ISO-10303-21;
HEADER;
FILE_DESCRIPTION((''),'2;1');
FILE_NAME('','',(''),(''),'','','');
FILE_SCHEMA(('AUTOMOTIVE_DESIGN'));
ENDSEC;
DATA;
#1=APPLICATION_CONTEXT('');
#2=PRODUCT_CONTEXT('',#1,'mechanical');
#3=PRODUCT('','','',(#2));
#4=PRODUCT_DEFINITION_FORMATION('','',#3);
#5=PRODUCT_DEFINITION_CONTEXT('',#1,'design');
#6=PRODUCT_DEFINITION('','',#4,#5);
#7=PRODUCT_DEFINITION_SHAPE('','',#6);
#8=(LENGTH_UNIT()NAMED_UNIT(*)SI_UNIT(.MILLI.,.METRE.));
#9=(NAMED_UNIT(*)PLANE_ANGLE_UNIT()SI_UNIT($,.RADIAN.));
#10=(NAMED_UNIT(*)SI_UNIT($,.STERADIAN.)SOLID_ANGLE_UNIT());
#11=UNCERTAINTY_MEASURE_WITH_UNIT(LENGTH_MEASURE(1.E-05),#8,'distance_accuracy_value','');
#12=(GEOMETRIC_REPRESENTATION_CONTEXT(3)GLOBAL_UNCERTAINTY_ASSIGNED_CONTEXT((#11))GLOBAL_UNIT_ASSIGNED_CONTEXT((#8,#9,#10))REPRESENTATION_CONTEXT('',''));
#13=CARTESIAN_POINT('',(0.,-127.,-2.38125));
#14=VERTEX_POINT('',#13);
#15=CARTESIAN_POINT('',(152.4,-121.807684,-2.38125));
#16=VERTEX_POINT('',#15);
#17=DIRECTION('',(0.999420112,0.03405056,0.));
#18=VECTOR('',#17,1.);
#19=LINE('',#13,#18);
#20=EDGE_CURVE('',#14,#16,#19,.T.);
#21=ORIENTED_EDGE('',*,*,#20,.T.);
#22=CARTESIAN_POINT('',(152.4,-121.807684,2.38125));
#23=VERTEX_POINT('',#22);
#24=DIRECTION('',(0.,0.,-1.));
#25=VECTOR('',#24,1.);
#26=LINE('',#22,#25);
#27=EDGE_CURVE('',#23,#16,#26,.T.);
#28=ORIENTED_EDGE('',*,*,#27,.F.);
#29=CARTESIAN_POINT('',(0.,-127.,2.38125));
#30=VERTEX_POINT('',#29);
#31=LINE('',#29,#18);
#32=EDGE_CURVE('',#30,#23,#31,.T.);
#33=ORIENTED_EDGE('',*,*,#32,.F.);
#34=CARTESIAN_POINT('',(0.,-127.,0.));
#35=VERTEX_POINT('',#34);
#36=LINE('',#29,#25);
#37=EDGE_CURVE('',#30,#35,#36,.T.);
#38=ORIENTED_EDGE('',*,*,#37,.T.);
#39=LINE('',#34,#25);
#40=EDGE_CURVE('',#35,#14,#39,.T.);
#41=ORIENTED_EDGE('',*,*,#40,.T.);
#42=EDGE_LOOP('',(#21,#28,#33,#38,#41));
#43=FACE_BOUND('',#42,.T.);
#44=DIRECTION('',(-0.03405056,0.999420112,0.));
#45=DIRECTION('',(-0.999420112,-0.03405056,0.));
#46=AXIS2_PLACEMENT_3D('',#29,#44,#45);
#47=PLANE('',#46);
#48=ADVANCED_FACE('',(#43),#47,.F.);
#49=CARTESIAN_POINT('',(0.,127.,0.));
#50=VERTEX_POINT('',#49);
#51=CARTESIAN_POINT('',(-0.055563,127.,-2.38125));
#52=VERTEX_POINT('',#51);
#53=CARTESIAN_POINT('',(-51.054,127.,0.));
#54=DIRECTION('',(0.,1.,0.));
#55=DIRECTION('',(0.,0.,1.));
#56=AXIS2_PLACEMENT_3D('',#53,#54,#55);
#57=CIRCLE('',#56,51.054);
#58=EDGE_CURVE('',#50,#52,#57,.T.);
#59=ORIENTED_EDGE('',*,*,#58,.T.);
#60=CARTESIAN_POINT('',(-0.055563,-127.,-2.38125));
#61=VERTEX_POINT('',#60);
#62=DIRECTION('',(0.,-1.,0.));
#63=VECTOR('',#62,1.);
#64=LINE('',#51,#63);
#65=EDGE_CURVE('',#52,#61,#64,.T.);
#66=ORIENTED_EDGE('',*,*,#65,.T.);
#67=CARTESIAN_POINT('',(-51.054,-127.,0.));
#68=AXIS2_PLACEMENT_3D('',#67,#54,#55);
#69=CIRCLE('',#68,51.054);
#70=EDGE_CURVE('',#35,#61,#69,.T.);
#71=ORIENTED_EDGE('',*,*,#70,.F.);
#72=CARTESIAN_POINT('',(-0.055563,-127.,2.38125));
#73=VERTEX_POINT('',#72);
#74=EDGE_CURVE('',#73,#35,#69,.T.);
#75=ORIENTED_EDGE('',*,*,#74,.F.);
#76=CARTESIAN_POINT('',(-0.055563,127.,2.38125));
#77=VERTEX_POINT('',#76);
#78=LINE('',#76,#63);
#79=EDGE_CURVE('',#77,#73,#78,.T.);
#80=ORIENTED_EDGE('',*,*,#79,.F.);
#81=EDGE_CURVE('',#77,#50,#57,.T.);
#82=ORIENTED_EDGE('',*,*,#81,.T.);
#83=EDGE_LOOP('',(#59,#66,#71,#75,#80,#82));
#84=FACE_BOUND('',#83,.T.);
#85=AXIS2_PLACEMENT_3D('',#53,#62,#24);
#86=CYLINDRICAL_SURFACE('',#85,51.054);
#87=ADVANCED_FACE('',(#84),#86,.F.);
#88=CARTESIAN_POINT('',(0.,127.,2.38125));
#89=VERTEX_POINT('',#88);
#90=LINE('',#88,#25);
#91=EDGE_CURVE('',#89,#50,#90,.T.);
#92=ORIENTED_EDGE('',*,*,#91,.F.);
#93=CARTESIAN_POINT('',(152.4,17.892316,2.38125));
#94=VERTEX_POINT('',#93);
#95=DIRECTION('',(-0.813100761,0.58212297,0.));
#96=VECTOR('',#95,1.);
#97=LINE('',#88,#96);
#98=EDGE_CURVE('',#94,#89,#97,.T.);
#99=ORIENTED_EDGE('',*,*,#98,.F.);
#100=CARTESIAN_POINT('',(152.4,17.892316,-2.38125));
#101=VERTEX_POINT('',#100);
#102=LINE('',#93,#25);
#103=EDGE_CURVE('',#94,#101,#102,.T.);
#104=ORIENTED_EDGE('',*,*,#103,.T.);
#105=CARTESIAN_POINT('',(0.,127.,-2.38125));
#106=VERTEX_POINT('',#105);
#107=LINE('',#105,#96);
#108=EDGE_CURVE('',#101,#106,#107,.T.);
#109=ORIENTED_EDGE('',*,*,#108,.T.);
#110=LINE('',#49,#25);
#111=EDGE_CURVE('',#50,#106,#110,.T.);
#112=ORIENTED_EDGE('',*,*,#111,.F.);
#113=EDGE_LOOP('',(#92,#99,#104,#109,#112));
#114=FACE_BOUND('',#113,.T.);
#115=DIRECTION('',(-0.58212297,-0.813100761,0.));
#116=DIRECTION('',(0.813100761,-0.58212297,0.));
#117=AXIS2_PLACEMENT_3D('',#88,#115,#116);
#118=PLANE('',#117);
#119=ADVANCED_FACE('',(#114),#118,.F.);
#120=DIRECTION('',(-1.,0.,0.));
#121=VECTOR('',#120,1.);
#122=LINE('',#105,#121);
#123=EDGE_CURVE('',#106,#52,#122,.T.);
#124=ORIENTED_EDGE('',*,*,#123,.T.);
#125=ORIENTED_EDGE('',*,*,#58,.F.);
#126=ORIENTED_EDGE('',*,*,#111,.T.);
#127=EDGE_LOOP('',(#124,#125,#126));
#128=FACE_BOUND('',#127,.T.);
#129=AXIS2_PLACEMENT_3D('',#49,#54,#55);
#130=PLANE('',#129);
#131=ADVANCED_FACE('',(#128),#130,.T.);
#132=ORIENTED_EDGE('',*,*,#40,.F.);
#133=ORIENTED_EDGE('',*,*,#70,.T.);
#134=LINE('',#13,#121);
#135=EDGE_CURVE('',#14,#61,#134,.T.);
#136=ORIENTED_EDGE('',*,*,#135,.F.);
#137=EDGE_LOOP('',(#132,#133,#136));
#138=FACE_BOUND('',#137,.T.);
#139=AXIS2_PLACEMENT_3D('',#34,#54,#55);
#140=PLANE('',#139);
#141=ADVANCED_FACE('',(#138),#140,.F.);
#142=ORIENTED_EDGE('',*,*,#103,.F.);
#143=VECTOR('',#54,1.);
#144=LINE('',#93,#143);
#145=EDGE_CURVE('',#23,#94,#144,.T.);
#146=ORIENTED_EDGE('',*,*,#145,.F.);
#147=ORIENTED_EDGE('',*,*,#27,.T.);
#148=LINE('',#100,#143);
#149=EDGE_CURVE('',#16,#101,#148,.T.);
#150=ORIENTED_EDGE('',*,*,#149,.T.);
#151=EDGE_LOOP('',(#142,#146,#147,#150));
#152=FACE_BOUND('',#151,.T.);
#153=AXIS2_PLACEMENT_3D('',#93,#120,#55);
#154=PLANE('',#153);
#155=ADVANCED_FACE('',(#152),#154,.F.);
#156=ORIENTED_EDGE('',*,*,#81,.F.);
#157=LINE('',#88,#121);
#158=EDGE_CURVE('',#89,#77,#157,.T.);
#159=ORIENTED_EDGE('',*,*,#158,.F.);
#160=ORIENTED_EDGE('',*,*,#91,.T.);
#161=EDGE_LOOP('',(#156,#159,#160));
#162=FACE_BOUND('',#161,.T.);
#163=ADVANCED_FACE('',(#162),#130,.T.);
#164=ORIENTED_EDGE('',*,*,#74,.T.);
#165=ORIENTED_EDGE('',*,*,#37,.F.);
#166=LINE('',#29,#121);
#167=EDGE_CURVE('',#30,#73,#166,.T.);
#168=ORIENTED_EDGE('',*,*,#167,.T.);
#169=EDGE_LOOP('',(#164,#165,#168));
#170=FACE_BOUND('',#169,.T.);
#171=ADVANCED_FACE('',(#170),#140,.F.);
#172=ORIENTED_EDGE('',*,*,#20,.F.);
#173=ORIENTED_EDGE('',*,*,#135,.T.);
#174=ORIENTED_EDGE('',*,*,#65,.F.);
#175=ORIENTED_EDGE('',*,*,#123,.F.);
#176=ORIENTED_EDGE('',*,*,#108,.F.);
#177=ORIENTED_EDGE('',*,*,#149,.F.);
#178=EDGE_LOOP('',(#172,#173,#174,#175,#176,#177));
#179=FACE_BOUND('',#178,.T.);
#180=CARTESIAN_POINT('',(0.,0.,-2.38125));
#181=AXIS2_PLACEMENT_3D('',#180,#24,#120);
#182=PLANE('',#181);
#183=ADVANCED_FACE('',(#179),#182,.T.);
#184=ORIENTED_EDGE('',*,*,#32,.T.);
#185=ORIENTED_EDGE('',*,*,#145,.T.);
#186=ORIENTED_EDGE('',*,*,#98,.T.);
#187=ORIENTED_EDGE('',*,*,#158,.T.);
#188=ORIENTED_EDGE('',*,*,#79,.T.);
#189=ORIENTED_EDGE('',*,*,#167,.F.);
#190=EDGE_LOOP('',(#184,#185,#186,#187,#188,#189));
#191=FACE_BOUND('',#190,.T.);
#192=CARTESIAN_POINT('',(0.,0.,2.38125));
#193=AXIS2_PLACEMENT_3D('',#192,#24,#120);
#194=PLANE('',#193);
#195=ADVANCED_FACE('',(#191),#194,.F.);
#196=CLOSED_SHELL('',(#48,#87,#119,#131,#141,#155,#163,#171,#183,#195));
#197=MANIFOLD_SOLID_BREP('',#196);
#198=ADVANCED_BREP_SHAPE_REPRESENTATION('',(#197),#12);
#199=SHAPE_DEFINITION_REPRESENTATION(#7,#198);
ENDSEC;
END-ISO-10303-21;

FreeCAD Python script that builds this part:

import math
import FreeCAD as App
import Part
import Sketcher

V = App.Vector
Q = App.Units.Quantity

doc = App.newDocument("Part")
body = doc.addObject("PartDesign::Body", "Body")

# Sketch on XY plane
sketch1 = doc.addObject("Sketcher::SketchObject", "Sketch")
body.addObject(sketch1)
sketch1.AttachmentSupport = (doc.XY_Plane, [""])
sketch1.MapMode = "FlatFace"
sketch1.addGeometry([
    Part.LineSegment(V(0, 127, 0), V(0, -127, 0)),
    Part.LineSegment(V(0, -127, 0), V(152, -122, 0)),
    Part.LineSegment(V(152, -122, 0), V(152, 18, 0)),
    Part.LineSegment(V(152, 18, 0), V(0, 127, 0)),
], False)
sketch1.addConstraint([
    Sketcher.Constraint("Coincident", 0, 2, 1, 1),
    Sketcher.Constraint("Coincident", 1, 2, 2, 1),
    Sketcher.Constraint("Coincident", 2, 2, 3, 1),
    Sketcher.Constraint("Coincident", 3, 2, 0, 1),
    Sketcher.Constraint("Vertical", 0),
    Sketcher.Constraint("Vertical", 2),
    Sketcher.Constraint("Symmetric", 0, 2, 3, 2, -1, 1),
    Sketcher.Constraint("DistanceY", 0, 2, 0, 1, Q("10 in")),
    Sketcher.Constraint("DistanceY", 2, 1, 2, 2, Q("5.5 in")),
    Sketcher.Constraint("DistanceX", -1, 1, 1, 2, Q("6 in")),
    Sketcher.Constraint("Angle", 3, Q("144.4 deg")),
])
pad1 = doc.addObject("PartDesign::Pad", "Pad")
body.addObject(pad1)
pad1.Profile = sketch1
pad1.Length = Q("0.1875 in")
pad1.Midplane = True

# Sketch on XZ plane
sketch2 = doc.addObject("Sketcher::SketchObject", "Sketch001")
body.addObject(sketch2)
sketch2.AttachmentSupport = (doc.XZ_Plane, [""])
sketch2.MapMode = "FlatFace"
sketch2.AttachmentOffset = App.Placement(V(0, 0, -100), App.Rotation())
sketch2.addGeometry([
    Part.LineSegment(V(0, 2.38, 0), V(0, 0, 0)),  # 0
    Part.ArcOfCircle(Part.Circle(V(-51.05, 0, 0), V(0, 0, 1), 51.05), math.radians(0), math.radians(2.67)),  # 1
    Part.LineSegment(V(-0.06, 2.38, 0), V(0, 2.38, 0)),  # 2
    Part.LineSegment(V(0, 0, 0), V(0, -2.38, 0)),  # 3
    Part.LineSegment(V(0, -2.38, 0), V(-0.06, -2.38, 0)),  # 4
    Part.ArcOfCircle(Part.Circle(V(-51.05, 0, 0), V(0, 0, 1), 51.05), math.radians(-2.67), math.radians(0)),  # 5
], False)
sketch2.addConstraint([
    Sketcher.Constraint("Tangent", 0, 2, 1, 1),
    Sketcher.Constraint("Coincident", 1, 2, 2, 1),
    Sketcher.Constraint("Coincident", 2, 2, 0, 1),
    Sketcher.Constraint("Coincident", 3, 2, 4, 1),
    Sketcher.Constraint("Coincident", 4, 2, 5, 1),
    Sketcher.Constraint("Tangent", 5, 2, 3, 1),
    Sketcher.Constraint("Vertical", 0),
    Sketcher.Constraint("Horizontal", 2),
    Sketcher.Constraint("Vertical", 3),
    Sketcher.Constraint("Horizontal", 4),
    Sketcher.Constraint("Coincident", 0, 2, -1, 1),
    Sketcher.Constraint("Coincident", 5, 2, -1, 1),
    Sketcher.Constraint("Equal", 1, 5),
    Sketcher.Constraint("Vertical", 1, 2, 4, 2),
    Sketcher.Constraint("Radius", 1, Q("2.01 in")),
    Sketcher.Constraint("DistanceY", 0, 2, 0, 1, Q("0.09375 in")),
])
pad2 = doc.addObject("PartDesign::Pad", "Pad001")
body.addObject(pad2)
pad2.Profile = sketch2
pad2.Type = "TwoLengths"
pad2.Length = 27
pad2.Length2 = 227
pad2.Reversed = True

doc.recompute()
